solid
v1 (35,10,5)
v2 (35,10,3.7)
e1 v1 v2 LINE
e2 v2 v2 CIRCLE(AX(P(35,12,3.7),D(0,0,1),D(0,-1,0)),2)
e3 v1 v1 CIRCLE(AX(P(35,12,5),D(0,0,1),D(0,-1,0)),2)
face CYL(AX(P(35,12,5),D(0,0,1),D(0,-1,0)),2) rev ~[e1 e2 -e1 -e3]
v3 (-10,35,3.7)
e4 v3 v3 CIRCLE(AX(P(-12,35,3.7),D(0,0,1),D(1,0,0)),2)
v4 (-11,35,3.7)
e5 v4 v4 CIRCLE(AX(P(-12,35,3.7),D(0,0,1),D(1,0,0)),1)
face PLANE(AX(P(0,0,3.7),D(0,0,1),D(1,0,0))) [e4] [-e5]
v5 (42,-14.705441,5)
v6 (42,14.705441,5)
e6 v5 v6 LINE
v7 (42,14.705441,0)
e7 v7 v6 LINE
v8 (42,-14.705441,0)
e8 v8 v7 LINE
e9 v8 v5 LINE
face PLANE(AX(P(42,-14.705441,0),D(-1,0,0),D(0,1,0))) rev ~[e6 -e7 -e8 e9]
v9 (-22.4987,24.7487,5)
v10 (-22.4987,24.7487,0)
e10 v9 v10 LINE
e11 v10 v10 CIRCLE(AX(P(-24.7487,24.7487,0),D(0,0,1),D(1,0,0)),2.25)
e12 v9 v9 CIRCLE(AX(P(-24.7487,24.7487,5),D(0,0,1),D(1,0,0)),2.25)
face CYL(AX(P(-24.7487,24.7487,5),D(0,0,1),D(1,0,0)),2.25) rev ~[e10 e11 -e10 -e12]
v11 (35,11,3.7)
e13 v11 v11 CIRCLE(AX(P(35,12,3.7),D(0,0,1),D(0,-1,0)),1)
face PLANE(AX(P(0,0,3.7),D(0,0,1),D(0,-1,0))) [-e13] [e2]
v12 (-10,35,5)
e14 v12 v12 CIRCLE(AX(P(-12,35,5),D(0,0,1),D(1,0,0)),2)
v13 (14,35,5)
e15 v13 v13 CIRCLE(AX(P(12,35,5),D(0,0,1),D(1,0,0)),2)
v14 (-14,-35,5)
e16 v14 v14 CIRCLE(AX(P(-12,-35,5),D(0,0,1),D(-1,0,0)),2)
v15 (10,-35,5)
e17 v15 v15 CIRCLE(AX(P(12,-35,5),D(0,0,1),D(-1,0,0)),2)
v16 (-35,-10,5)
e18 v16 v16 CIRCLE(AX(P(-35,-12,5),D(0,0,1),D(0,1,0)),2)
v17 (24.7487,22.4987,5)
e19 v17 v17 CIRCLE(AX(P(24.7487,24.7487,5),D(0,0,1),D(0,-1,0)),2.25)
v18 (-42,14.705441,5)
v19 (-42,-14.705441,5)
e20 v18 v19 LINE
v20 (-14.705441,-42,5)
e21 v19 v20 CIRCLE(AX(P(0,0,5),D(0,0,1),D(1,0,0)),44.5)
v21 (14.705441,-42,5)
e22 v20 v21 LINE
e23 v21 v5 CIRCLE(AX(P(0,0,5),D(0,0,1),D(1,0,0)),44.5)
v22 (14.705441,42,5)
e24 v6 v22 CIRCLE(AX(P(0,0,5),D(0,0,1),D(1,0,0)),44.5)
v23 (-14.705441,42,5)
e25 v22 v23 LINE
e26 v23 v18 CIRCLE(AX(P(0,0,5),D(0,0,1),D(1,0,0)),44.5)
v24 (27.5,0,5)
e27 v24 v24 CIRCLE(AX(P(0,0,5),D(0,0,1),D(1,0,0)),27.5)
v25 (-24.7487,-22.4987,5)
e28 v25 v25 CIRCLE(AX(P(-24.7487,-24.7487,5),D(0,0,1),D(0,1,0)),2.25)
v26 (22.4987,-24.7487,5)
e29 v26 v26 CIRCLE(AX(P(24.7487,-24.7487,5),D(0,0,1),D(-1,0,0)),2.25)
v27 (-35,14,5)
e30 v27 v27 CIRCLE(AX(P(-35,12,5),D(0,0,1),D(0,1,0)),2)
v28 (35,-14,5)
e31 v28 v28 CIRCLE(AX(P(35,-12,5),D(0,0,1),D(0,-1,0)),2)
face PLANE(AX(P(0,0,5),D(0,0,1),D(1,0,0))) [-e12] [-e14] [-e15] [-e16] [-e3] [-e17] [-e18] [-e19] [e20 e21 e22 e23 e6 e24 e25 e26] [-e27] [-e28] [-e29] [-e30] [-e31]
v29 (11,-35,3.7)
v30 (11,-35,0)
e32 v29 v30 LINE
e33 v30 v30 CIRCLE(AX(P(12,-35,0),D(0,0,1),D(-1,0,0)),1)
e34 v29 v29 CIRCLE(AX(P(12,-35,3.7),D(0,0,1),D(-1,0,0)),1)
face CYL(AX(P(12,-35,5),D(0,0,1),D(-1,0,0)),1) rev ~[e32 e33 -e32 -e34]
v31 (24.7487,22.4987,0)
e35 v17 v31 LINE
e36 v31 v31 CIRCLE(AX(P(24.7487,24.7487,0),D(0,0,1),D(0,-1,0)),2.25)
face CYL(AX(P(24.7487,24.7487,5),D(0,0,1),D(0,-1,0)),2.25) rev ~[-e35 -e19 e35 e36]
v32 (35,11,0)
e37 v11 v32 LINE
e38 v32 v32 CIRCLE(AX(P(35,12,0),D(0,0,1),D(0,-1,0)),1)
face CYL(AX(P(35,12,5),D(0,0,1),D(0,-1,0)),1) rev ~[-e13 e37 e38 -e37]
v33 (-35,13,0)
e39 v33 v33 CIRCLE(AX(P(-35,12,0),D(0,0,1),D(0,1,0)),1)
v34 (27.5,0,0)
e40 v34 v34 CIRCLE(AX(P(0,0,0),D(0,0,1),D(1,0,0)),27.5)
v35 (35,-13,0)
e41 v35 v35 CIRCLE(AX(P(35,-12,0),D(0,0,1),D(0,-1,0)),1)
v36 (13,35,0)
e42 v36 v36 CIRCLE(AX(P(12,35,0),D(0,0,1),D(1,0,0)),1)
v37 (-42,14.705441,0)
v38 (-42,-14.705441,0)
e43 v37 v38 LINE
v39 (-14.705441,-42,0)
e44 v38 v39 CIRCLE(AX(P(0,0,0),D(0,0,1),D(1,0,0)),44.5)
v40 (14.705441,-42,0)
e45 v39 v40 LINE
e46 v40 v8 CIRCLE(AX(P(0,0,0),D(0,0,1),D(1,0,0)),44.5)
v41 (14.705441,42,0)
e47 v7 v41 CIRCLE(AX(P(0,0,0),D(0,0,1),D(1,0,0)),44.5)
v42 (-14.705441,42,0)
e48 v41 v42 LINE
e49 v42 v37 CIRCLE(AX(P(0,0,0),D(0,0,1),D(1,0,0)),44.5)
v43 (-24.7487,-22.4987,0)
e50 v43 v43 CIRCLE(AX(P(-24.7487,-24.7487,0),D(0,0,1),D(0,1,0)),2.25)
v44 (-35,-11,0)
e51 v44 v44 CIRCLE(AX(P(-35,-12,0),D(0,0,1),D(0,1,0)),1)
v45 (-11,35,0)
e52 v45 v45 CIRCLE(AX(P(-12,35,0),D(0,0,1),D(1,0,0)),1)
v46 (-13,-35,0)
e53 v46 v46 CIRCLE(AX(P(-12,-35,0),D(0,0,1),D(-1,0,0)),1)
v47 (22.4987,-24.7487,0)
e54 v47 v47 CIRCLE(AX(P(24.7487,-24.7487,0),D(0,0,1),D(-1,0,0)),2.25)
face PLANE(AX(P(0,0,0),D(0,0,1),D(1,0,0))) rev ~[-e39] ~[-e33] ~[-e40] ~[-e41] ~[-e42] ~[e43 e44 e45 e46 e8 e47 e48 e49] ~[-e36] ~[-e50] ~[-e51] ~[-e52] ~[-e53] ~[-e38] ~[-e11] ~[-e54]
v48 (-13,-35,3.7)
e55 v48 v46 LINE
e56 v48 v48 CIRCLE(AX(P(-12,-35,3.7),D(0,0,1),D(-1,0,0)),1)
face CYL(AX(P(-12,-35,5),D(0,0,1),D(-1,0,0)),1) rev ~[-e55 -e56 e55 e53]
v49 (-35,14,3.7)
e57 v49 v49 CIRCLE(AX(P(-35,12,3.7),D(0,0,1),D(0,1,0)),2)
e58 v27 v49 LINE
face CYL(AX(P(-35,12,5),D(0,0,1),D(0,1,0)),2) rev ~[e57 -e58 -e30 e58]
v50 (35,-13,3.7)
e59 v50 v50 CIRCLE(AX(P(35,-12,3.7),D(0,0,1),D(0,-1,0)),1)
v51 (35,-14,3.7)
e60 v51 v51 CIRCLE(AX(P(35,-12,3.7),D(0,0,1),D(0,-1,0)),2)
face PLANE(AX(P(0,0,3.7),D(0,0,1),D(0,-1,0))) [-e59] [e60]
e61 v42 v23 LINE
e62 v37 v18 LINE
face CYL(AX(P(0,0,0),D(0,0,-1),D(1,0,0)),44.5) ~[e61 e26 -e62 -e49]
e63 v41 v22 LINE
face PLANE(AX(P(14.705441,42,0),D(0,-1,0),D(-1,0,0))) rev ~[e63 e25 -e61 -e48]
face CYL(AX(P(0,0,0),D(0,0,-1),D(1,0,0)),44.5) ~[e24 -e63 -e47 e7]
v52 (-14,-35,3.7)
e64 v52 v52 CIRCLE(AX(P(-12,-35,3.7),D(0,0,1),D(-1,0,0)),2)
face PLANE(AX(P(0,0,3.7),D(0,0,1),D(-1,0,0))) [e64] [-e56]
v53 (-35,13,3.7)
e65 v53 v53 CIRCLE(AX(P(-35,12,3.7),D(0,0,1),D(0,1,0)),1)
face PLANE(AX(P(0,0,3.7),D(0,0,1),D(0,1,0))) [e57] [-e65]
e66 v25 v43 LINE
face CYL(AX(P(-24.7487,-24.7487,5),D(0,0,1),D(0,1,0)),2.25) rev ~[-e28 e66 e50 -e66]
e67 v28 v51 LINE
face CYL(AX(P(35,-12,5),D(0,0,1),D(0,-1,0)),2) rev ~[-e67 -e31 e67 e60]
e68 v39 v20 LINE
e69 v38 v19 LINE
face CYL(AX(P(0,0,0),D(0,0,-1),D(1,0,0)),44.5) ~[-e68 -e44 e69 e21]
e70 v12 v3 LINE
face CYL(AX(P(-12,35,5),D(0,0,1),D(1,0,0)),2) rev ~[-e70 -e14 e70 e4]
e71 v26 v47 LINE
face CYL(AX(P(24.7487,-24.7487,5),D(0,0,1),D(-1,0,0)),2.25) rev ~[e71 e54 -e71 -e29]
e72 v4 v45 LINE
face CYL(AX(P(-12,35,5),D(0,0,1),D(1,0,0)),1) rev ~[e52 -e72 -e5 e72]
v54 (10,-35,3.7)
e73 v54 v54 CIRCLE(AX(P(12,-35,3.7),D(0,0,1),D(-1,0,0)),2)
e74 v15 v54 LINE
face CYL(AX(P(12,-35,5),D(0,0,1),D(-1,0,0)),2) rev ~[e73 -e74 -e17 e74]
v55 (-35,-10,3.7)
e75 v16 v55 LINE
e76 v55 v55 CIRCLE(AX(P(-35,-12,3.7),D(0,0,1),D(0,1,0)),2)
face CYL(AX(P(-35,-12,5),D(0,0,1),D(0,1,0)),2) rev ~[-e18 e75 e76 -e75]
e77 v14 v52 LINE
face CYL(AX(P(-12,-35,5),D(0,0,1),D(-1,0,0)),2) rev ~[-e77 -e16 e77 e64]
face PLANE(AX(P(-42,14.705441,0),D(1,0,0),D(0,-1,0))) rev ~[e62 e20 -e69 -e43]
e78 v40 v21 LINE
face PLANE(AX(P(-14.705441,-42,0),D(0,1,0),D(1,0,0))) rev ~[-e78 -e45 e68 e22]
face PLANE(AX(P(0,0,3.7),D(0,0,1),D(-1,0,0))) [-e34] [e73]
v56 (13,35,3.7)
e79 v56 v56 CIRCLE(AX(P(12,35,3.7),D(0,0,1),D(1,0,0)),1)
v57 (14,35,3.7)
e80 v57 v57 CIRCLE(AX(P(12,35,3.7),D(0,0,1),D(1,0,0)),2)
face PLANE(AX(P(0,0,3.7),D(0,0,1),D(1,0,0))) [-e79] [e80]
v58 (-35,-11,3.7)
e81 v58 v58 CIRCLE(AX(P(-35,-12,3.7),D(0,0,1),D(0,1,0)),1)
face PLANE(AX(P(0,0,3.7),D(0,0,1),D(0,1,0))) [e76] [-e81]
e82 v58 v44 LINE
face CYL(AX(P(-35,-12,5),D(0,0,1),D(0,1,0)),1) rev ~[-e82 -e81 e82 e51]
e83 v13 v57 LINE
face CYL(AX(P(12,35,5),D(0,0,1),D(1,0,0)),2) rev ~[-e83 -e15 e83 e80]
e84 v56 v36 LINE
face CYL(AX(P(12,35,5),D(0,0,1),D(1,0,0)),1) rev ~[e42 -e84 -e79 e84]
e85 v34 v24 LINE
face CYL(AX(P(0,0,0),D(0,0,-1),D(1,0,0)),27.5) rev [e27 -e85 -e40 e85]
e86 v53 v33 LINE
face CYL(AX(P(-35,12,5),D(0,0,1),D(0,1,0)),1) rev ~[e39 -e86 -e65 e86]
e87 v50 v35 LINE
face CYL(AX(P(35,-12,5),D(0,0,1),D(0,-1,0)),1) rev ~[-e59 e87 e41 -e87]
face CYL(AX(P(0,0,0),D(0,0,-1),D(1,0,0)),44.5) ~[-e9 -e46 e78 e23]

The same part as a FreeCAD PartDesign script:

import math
import FreeCAD as App
import Part
import Sketcher
from FreeCAD import Vector
Q = App.Units.Quantity

doc = App.newDocument("Part")
body = doc.addObject("PartDesign::Body", "Body")

sketch1 = body.newObject("Sketcher::SketchObject", "Sketch")
sketch1.AttachmentSupport = (doc.getObject("XY_Plane"), [""])
sketch1.MapMode = "FlatFace"
sketch1.addGeometry(Part.LineSegment(Vector(42, -14.705441, 0), Vector(42, 14.705441, 0)), False)
sketch1.addGeometry(Part.ArcOfCircle(Part.Circle(Vector(0, 0, 0), Vector(0, 0, 1), 44.5), math.radians(19.296659), math.radians(70.703341)), False)
sketch1.addGeometry(Part.LineSegment(Vector(14.705441, 42, 0), Vector(-14.705441, 42, 0)), False)
sketch1.addGeometry(Part.ArcOfCircle(Part.Circle(Vector(0, 0, 0), Vector(0, 0, 1), 44.5), math.radians(109.296659), math.radians(160.703341)), False)
sketch1.addGeometry(Part.LineSegment(Vector(-42, 14.705441, 0), Vector(-42, -14.705441, 0)), False)
sketch1.addGeometry(Part.ArcOfCircle(Part.Circle(Vector(0, 0, 0), Vector(0, 0, 1), 44.5), math.radians(-160.703341), math.radians(-109.296659)), False)
sketch1.addGeometry(Part.LineSegment(Vector(-14.705441, -42, 0), Vector(14.705441, -42, 0)), False)
sketch1.addGeometry(Part.ArcOfCircle(Part.Circle(Vector(0, 0, 0), Vector(0, 0, 1), 44.5), math.radians(-70.703341), math.radians(-19.296659)), False)
sketch1.addGeometry(Part.Circle(Vector(0, 0, 0), Vector(0, 0, 1), 27.5), False)
sketch1.addConstraint(Sketcher.Constraint("Coincident", 0, 2, 1, 1))
sketch1.addConstraint(Sketcher.Constraint("Coincident", 1, 2, 2, 1))
sketch1.addConstraint(Sketcher.Constraint("Coincident", 2, 2, 3, 1))
sketch1.addConstraint(Sketcher.Constraint("Coincident", 3, 2, 4, 1))
sketch1.addConstraint(Sketcher.Constraint("Coincident", 4, 2, 5, 1))
sketch1.addConstraint(Sketcher.Constraint("Coincident", 5, 2, 6, 1))
sketch1.addConstraint(Sketcher.Constraint("Coincident", 6, 2, 7, 1))
sketch1.addConstraint(Sketcher.Constraint("Coincident", 7, 2, 0, 1))
sketch1.addConstraint(Sketcher.Constraint("Vertical", 0))
sketch1.addConstraint(Sketcher.Constraint("Horizontal", 2))
sketch1.addConstraint(Sketcher.Constraint("Vertical", 4))
sketch1.addConstraint(Sketcher.Constraint("Horizontal", 6))
sketch1.addConstraint(Sketcher.Constraint("Coincident", 1, 3, -1, 1))
sketch1.addConstraint(Sketcher.Constraint("Coincident", 3, 3, -1, 1))
sketch1.addConstraint(Sketcher.Constraint("Coincident", 5, 3, -1, 1))
sketch1.addConstraint(Sketcher.Constraint("Coincident", 7, 3, -1, 1))
sketch1.addConstraint(Sketcher.Constraint("Coincident", 8, 3, -1, 1))
sketch1.addConstraint(Sketcher.Constraint("Equal", 1, 3))
sketch1.addConstraint(Sketcher.Constraint("Equal", 3, 5))
sketch1.addConstraint(Sketcher.Constraint("Equal", 5, 7))
sketch1.addConstraint(Sketcher.Constraint("Horizontal", 0, 2, 3, 2))
sketch1.addConstraint(Sketcher.Constraint("Vertical", 2, 2, 5, 2))
sketch1.addConstraint(Sketcher.Constraint("Equal", 6, 0))
sketch1.addConstraint(Sketcher.Constraint("Diameter", 8, Q("55 mm")))
sketch1.addConstraint(Sketcher.Constraint("Radius", 1, Q("44.5 mm")))
sketch1.addConstraint(Sketcher.Constraint("DistanceX", -1, 1, 0, 2, Q("42 mm")))
pad1 = body.newObject("PartDesign::Pad", "Pad")
pad1.Profile = sketch1
pad1.Length = 5

sketch2 = body.newObject("Sketcher::SketchObject", "Sketch001")
sketch2.AttachmentSupport = (doc.getObject("XY_Plane"), [""])
sketch2.MapMode = "FlatFace"
sketch2.AttachmentOffset = App.Placement(Vector(0, 0, 5), App.Rotation())
sketch2.addGeometry(Part.Circle(Vector(-12, 35, 0), Vector(0, 0, 1), 2), False)
sketch2.addGeometry(Part.Circle(Vector(12, 35, 0), Vector(0, 0, 1), 2), False)
sketch2.addConstraint(Sketcher.Constraint("Equal", 0, 1))
sketch2.addConstraint(Sketcher.Constraint("Symmetric", 0, 3, 1, 3, -2))
sketch2.addConstraint(Sketcher.Constraint("Diameter", 0, Q("4 mm")))
sketch2.addConstraint(Sketcher.Constraint("DistanceX", 0, 3, -1, 1, Q("12 mm")))
sketch2.addConstraint(Sketcher.Constraint("DistanceY", -1, 1, 0, 3, Q("35 mm")))
pocket1 = body.newObject("PartDesign::Pocket", "Pocket")
pocket1.Profile = sketch2
pocket1.Length = 1.3

sketch3 = body.newObject("Sketcher::SketchObject", "Sketch002")
sketch3.AttachmentSupport = (doc.getObject("XY_Plane"), [""])
sketch3.MapMode = "FlatFace"
sketch3.AttachmentOffset = App.Placement(Vector(0, 0, 5), App.Rotation())
sketch3.addGeometry(Part.Circle(Vector(-12, 35, 0), Vector(0, 0, 1), 1), False)
sketch3.addGeometry(Part.Circle(Vector(12, 35, 0), Vector(0, 0, 1), 1), False)
sketch3.addConstraint(Sketcher.Constraint("Equal", 0, 1))
sketch3.addConstraint(Sketcher.Constraint("Symmetric", 0, 3, 1, 3, -2))
sketch3.addConstraint(Sketcher.Constraint("Diameter", 0, Q("2 mm")))
sketch3.addConstraint(Sketcher.Constraint("DistanceX", 0, 3, -1, 1, Q("12 mm")))
sketch3.addConstraint(Sketcher.Constraint("DistanceY", -1, 1, 0, 3, Q("35 mm")))
pocket2 = body.newObject("PartDesign::Pocket", "Pocket001")
pocket2.Profile = sketch3
pocket2.Length = 10.5
doc.recompute()

polarpattern = body.newObject("PartDesign::PolarPattern", "PolarPattern")
polarpattern.Originals = [pocket1, pocket2]
polarpattern.Axis = (doc.getObject("Z_Axis"), [""])
polarpattern.Angle = 360
polarpattern.Occurrences = 4
body.Tip = polarpattern

sketch4 = body.newObject("Sketcher::SketchObject", "Sketch003")
sketch4.AttachmentSupport = (doc.getObject("XY_Plane"), [""])
sketch4.MapMode = "FlatFace"
sketch4.AttachmentOffset = App.Placement(Vector(0, 0, 5), App.Rotation())
sketch4.addGeometry(Part.Circle(Vector(-24.7487, 24.7487, 0), Vector(0, 0, 1), 2.25), False)
sketch4.addConstraint(Sketcher.Constraint("Diameter", 0, Q("4.5 mm")))
sketch4.addConstraint(Sketcher.Constraint("DistanceX", 0, 3, -1, 1, Q("24.7487 mm")))
sketch4.addConstraint(Sketcher.Constraint("DistanceY", -1, 1, 0, 3, Q("24.7487 mm")))
pocket3 = body.newObject("PartDesign::Pocket", "Pocket002")
pocket3.Profile = sketch4
pocket3.Length = 5
doc.recompute()

polarpattern2 = body.newObject("PartDesign::PolarPattern", "PolarPattern001")
polarpattern2.Originals = [pocket3]
polarpattern2.Axis = (doc.getObject("Z_Axis"), [""])
polarpattern2.Angle = 360
polarpattern2.Occurrences = 4
body.Tip = polarpattern2

doc.recompute()
